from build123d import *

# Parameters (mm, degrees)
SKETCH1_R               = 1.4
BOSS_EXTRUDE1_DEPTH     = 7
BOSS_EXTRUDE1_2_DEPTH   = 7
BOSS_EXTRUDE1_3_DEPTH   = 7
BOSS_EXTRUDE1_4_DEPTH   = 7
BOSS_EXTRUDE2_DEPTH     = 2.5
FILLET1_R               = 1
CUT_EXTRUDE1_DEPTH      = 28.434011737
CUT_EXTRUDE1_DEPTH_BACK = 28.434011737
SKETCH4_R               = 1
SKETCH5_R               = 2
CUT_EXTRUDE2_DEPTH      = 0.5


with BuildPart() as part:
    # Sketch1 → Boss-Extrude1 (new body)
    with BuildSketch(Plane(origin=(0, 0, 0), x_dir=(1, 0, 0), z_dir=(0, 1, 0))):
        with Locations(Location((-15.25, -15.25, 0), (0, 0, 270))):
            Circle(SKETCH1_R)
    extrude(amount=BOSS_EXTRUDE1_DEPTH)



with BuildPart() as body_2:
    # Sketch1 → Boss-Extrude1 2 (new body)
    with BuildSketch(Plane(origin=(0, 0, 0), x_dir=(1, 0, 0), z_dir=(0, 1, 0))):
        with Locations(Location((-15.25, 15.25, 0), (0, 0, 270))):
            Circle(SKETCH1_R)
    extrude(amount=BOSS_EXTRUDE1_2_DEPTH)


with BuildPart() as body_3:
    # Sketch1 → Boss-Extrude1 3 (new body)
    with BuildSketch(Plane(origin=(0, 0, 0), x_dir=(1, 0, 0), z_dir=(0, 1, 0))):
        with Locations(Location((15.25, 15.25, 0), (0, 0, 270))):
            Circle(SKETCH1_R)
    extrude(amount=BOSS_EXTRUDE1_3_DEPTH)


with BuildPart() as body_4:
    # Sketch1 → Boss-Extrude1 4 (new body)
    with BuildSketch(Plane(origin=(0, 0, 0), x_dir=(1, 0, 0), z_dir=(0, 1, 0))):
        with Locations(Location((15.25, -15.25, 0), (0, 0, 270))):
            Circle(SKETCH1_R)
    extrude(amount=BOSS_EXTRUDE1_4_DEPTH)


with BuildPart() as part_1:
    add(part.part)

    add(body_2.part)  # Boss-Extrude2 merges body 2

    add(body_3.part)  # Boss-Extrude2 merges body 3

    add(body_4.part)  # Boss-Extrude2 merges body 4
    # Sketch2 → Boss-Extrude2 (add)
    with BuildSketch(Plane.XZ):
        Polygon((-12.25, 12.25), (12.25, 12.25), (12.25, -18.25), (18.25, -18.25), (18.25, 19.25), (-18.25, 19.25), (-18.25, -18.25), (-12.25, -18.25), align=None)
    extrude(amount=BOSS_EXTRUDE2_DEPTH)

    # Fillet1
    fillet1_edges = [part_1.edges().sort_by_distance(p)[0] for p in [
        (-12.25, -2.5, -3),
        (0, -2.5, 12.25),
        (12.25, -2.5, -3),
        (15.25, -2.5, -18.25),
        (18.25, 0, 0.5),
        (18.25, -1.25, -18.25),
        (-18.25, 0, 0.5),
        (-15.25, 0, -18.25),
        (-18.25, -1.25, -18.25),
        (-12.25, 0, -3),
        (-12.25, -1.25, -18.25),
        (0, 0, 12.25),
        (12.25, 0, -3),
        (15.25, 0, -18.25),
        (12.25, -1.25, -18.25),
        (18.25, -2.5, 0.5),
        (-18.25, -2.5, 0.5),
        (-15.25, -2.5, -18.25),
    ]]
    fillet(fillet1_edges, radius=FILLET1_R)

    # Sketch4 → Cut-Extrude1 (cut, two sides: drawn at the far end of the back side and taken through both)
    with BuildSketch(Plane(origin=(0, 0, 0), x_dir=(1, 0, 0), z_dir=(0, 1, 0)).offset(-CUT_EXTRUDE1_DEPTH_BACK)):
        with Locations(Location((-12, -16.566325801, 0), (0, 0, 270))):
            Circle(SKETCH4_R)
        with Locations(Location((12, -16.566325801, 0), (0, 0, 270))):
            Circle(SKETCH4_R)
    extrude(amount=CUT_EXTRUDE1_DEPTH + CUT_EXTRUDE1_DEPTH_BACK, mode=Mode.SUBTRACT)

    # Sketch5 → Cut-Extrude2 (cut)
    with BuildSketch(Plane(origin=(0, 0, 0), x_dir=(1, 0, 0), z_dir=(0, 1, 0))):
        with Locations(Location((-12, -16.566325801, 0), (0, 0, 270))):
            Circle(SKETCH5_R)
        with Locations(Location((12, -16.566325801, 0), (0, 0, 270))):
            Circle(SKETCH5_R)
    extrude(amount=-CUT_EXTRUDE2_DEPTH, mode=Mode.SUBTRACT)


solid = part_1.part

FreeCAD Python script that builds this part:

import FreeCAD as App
import Part
import Sketcher


def edges_at(feature, points):
    """Names of the edges that pass closest to the given points."""
    edges = feature.Shape.Edges
    near = lambda p: min(range(len(edges)), key=lambda i: edges[i].distToShape(Part.Vertex(*p))[0])
    return sorted({f"Edge{near(p) + 1}" for p in points})

doc = App.newDocument("Part")
body = doc.addObject("PartDesign::Body", "Body")

# Sketch on XZ plane
sketch1 = body.newObject("Sketcher::SketchObject", "Sketch")
sketch1.AttachmentSupport = (doc.getObject("XZ_Plane"), [""])
sketch1.MapMode = "FlatFace"
sketch1.addGeometry(Part.Circle(App.Vector(-15.2, 15.2, 0), App.Vector(0, 0, 1), 1.4), False)
sketch1.addConstraint([
    Sketcher.Constraint("Diameter", 0, 2.8),
    Sketcher.Constraint("DistanceX", 0, 3, -1, 1, 15.25),
    Sketcher.Constraint("DistanceY", -1, 1, 0, 3, 15.25),
])
pad1 = body.newObject("PartDesign::Pad", "Pad")
pad1.Profile = sketch1
pad1.Length = 7
pad1.Reversed = True
body2 = doc.addObject("PartDesign::Body", "Body001")

# Sketch on XZ plane
sketch2 = body2.newObject("Sketcher::SketchObject", "Sketch001")
sketch2.AttachmentSupport = (doc.getObject("XZ_Plane001"), [""])
sketch2.MapMode = "FlatFace"
sketch2.addGeometry(Part.Circle(App.Vector(-15.2, -15.2, 0), App.Vector(0, 0, 1), 1.4), False)
sketch2.addConstraint([
    Sketcher.Constraint("Diameter", 0, 2.8),
    Sketcher.Constraint("DistanceX", 0, 3, -1, 1, 15.25),
    Sketcher.Constraint("DistanceY", 0, 3, -1, 1, 15.25),
])
pad2 = body2.newObject("PartDesign::Pad", "Pad001")
pad2.Profile = sketch2
pad2.Length = 7
pad2.Reversed = True
body3 = doc.addObject("PartDesign::Body", "Body002")

# Sketch on XZ plane
sketch3 = body3.newObject("Sketcher::SketchObject", "Sketch002")
sketch3.AttachmentSupport = (doc.getObject("XZ_Plane002"), [""])
sketch3.MapMode = "FlatFace"
sketch3.addGeometry(Part.Circle(App.Vector(15.2, -15.2, 0), App.Vector(0, 0, 1), 1.4), False)
sketch3.addConstraint([
    Sketcher.Constraint("Diameter", 0, 2.8),
    Sketcher.Constraint("DistanceX", -1, 1, 0, 3, 15.25),
    Sketcher.Constraint("DistanceY", 0, 3, -1, 1, 15.25),
])
pad3 = body3.newObject("PartDesign::Pad", "Pad002")
pad3.Profile = sketch3
pad3.Length = 7
pad3.Reversed = True
body4 = doc.addObject("PartDesign::Body", "Body003")

# Sketch on XZ plane
sketch4 = body4.newObject("Sketcher::SketchObject", "Sketch003")
sketch4.AttachmentSupport = (doc.getObject("XZ_Plane003"), [""])
sketch4.MapMode = "FlatFace"
sketch4.addGeometry(Part.Circle(App.Vector(15.2, 15.2, 0), App.Vector(0, 0, 1), 1.4), False)
sketch4.addConstraint([
    Sketcher.Constraint("Diameter", 0, 2.8),
    Sketcher.Constraint("DistanceX", -1, 1, 0, 3, 15.25),
    Sketcher.Constraint("DistanceY", -1, 1, 0, 3, 15.25),
])
pad4 = body4.newObject("PartDesign::Pad", "Pad003")
pad4.Profile = sketch4
pad4.Length = 7
pad4.Reversed = True
body.AllowCompound = True
doc.recompute()

boolean = body.newObject("PartDesign::Boolean", "Boolean")
boolean.Type = "Fuse"
boolean.addObjects([body2])
doc.recompute()

boolean2 = body.newObject("PartDesign::Boolean", "Boolean001")
boolean2.Type = "Fuse"
boolean2.addObjects([body3])
doc.recompute()

boolean3 = body.newObject("PartDesign::Boolean", "Boolean002")
boolean3.Type = "Fuse"
boolean3.addObjects([body4])

# Sketch on XZ plane
sketch5 = body.newObject("Sketcher::SketchObject", "Sketch004")
sketch5.AttachmentSupport = (doc.getObject("XZ_Plane"), [""])
sketch5.MapMode = "FlatFace"
sketch5.addGeometry([
    Part.LineSegment(App.Vector(-12, 12, 0), App.Vector(12, 12, 0)),  # 0
    Part.LineSegment(App.Vector(12, 12, 0), App.Vector(12, -18, 0)),  # 1
    Part.LineSegment(App.Vector(12, -18, 0), App.Vector(18, -18, 0)),  # 2
    Part.LineSegment(App.Vector(18, -18, 0), App.Vector(18, 19, 0)),  # 3
    Part.LineSegment(App.Vector(18, 19, 0), App.Vector(-18, 19, 0)),  # 4
    Part.LineSegment(App.Vector(-18, 19, 0), App.Vector(-18, -18, 0)),  # 5
    Part.LineSegment(App.Vector(-18, -18, 0), App.Vector(-12, -18, 0)),  # 6
    Part.LineSegment(App.Vector(-12, -18, 0), App.Vector(-12, 12, 0)),  # 7
], False)
sketch5.addConstraint([
    Sketcher.Constraint("Coincident", 0, 2, 1, 1),
    Sketcher.Constraint("Coincident", 1, 2, 2, 1),
    Sketcher.Constraint("Coincident", 2, 2, 3, 1),
    Sketcher.Constraint("Coincident", 3, 2, 4, 1),
    Sketcher.Constraint("Coincident", 4, 2, 5, 1),
    Sketcher.Constraint("Coincident", 5, 2, 6, 1),
    Sketcher.Constraint("Coincident", 6, 2, 7, 1),
    Sketcher.Constraint("Coincident", 7, 2, 0, 1),
    Sketcher.Constraint("Horizontal", 0),
    Sketcher.Constraint("Vertical", 1),
    Sketcher.Constraint("Horizontal", 2),
    Sketcher.Constraint("Vertical", 3),
    Sketcher.Constraint("Horizontal", 4),
    Sketcher.Constraint("Vertical", 5),
    Sketcher.Constraint("Horizontal", 6),
    Sketcher.Constraint("Vertical", 7),
    Sketcher.Constraint("Symmetric", 2, 2, 5, 2, -2),
    Sketcher.Constraint("Equal", 2, 6),
    Sketcher.Constraint("DistanceX", 2, 1, 2, 2, 6.0),
    Sketcher.Constraint("DistanceX", 0, 1, 0, 2, 24.5),
    Sketcher.Constraint("DistanceY", 1, 2, 1, 1, 30.5),
    Sketcher.Constraint("DistanceY", 3, 1, 3, 2, 37.5),
    Sketcher.Constraint("DistanceY", -1, 1, 0, 2, 12.25),
])
pad5 = body.newObject("PartDesign::Pad", "Pad004")
pad5.Profile = sketch5
pad5.Length = 2.5
doc.recompute()

fillet = body.newObject("PartDesign::Fillet", "Fillet")
fillet.Base = (pad5, edges_at(pad5, [
    (-12.25, -2.5, -3),
    (0, -2.5, 12.25),
    (12.25, -2.5, -3),
    (15.25, -2.5, -18.25),
    (18.25, 0, 0.5),
    (18.25, -1.25, -18.25),
    (-18.25, 0, 0.5),
    (-15.25, 0, -18.25),
    (-18.25, -1.25, -18.25),
    (-12.25, 0, -3),
    (-12.25, -1.25, -18.25),
    (0, 0, 12.25),
    (12.25, 0, -3),
    (15.25, 0, -18.25),
    (12.25, -1.25, -18.25),
    (18.25, -2.5, 0.5),
    (-18.25, -2.5, 0.5),
    (-15.25, -2.5, -18.25),
]))
fillet.Radius = 1

# Sketch on XZ plane
sketch6 = body.newObject("Sketcher::SketchObject", "Sketch005")
sketch6.AttachmentSupport = (doc.getObject("XZ_Plane"), [""])
sketch6.MapMode = "FlatFace"
sketch6.addGeometry([
    Part.Circle(App.Vector(-12, 16.6, 0), App.Vector(0, 0, 1), 1),
    Part.Circle(App.Vector(12, 16.6, 0), App.Vector(0, 0, 1), 1),
], False)
sketch6.addConstraint([
    Sketcher.Constraint("Equal", 0, 1),
    Sketcher.Constraint("Symmetric", 0, 3, 1, 3, -2),
    Sketcher.Constraint("Diameter", 0, 2.0),
    Sketcher.Constraint("DistanceX", 0, 3, -1, 1, 12.0),
    Sketcher.Constraint("DistanceY", -1, 1, 0, 3, 16.566326),
])
pocket1 = body.newObject("PartDesign::Pocket", "Pocket")
pocket1.Profile = sketch6
pocket1.Type = "ThroughAll"
pocket1.Midplane = True

# Sketch on XZ plane
sketch7 = body.newObject("Sketcher::SketchObject", "Sketch006")
sketch7.AttachmentSupport = (doc.getObject("XZ_Plane"), [""])
sketch7.MapMode = "FlatFace"
sketch7.addGeometry([
    Part.Circle(App.Vector(-12, 16.6, 0), App.Vector(0, 0, 1), 2),
    Part.Circle(App.Vector(12, 16.6, 0), App.Vector(0, 0, 1), 2),
], False)
sketch7.addConstraint([
    Sketcher.Constraint("Equal", 0, 1),
    Sketcher.Constraint("Symmetric", 0, 3, 1, 3, -2),
    Sketcher.Constraint("Diameter", 0, 4.0),
    Sketcher.Constraint("DistanceX", 0, 3, -1, 1, 12.0),
    Sketcher.Constraint("DistanceY", -1, 1, 0, 3, 16.566326),
])
pocket2 = body.newObject("PartDesign::Pocket", "Pocket001")
pocket2.Profile = sketch7
pocket2.Length = 0.5
pocket2.Reversed = True

doc.recompute()
